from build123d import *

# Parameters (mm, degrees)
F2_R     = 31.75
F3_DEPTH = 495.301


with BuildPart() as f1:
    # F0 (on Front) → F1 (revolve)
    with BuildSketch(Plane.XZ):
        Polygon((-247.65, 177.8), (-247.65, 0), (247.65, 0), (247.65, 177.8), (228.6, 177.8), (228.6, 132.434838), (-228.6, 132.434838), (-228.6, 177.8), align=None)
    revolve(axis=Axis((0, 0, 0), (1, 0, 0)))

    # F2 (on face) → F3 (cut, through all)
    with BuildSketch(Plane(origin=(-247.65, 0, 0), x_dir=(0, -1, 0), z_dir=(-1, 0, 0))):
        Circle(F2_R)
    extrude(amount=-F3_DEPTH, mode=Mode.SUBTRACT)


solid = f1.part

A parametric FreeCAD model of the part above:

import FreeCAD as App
import Part
import Sketcher

V = App.Vector
Q = App.Units.Quantity


def add_polygon(sketch, points):
    """Adds a closed chain of lines whose ends are joined by coincident constraints."""
    first, n = sketch.GeometryCount, len(points)
    for a, b in zip(points, points[1:] + points[:1]):
        sketch.addGeometry(Part.LineSegment(App.Vector(*a, 0), App.Vector(*b, 0)), False)
    for i in range(n):
        sketch.addConstraint(Sketcher.Constraint("Coincident", first + i, 2, first + (i + 1) % n, 1))

doc = App.newDocument("Part")
params = doc.addObject("Spreadsheet::Sheet", "Params")
for row, (alias, value) in enumerate([
    ("sketch1_width", "18 in"),
    ("sketch1_height", "7 in"),
    ("sketch1_width2", "19.5 in"),
    ("revolution_angle", "360 deg"),
    ("sketch2_diameter", "2.5 in"),
], start=1):
    params.set(f"A{row}", alias)
    params.set(f"B{row}", "=" + value)
    params.setAlias(f"B{row}", alias)

body = doc.addObject("PartDesign::Body", "Body")

sketch1 = body.newObject("Sketcher::SketchObject", "Sketch")
sketch1.AttachmentSupport = (doc.getObject("XZ_Plane"), [""])
sketch1.MapMode = "FlatFace"
add_polygon(sketch1, [(-248, 178), (-248, 0), (248, 0), (248, 178), (229, 178), (229, 132), (-229, 132), (-229, 178)])
sketch1.addConstraint(Sketcher.Constraint("Vertical", 0))
sketch1.addConstraint(Sketcher.Constraint("Horizontal", 1))
sketch1.addConstraint(Sketcher.Constraint("Vertical", 2))
sketch1.addConstraint(Sketcher.Constraint("Horizontal", 3))
sketch1.addConstraint(Sketcher.Constraint("Vertical", 4))
sketch1.addConstraint(Sketcher.Constraint("Horizontal", 5))
sketch1.addConstraint(Sketcher.Constraint("Vertical", 6))
sketch1.addConstraint(Sketcher.Constraint("Horizontal", 7))
sketch1.addConstraint(Sketcher.Constraint("Symmetric", 0, 2, 1, 2, -1, 1))
sketch1.addConstraint(Sketcher.Constraint("Symmetric", 3, 2, 6, 2, -2))
sketch1.addConstraint(Sketcher.Constraint("DistanceX", 5, 2, 5, 1, Q("18 in")))
sketch1.addConstraint(Sketcher.Constraint("DistanceY", 0, 2, 0, 1, Q("7 in")))
sketch1.addConstraint(Sketcher.Constraint("DistanceX", 1, 1, 1, 2, Q("19.5 in")))
sketch1.addConstraint(Sketcher.Constraint("DistanceY", 4, 2, 4, 1, 45.365162))
sketch1.setExpression("Constraints[18]", "Params.sketch1_width")
sketch1.setExpression("Constraints[19]", "Params.sketch1_height")
sketch1.setExpression("Constraints[20]", "Params.sketch1_width2")
revolution = body.newObject("PartDesign::Revolution", "Revolution")
revolution.Profile = sketch1
revolution.ReferenceAxis = (sketch1, ["H_Axis"])
revolution.setExpression("Angle", "Params.revolution_angle")

sketch2 = body.newObject("Sketcher::SketchObject", "Sketch001")
sketch2.AttachmentSupport = (doc.getObject("YZ_Plane"), [""])
sketch2.MapMode = "FlatFace"
sketch2.AttachmentOffset = App.Placement(V(0, 0, -9.75 * 25.4), App.Rotation())
sketch2.addGeometry(Part.Circle(V(0, 0, 0), V(0, 0, 1), 32), False)
sketch2.addConstraint(Sketcher.Constraint("Coincident", 0, 3, -1, 1))
sketch2.addConstraint(Sketcher.Constraint("Diameter", 0, Q("2.5 in")))
sketch2.setExpression("Constraints[1]", "Params.sketch2_diameter")
pocket1 = body.newObject("PartDesign::Pocket", "Pocket")
pocket1.Profile = sketch2
pocket1.Type = "ThroughAll"
pocket1.Reversed = True

doc.recompute()
